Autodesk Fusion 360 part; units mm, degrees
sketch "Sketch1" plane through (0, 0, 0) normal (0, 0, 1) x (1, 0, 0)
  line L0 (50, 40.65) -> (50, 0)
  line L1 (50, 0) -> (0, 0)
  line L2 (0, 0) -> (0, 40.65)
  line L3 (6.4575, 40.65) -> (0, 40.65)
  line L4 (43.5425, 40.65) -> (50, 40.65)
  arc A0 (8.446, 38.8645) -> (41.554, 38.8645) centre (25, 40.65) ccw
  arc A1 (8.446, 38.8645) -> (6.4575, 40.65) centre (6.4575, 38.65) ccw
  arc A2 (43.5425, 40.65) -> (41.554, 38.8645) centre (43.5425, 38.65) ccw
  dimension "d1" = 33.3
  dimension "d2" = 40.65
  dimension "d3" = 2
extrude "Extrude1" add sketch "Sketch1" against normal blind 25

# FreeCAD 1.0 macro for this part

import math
import FreeCAD as App
import Part
import Sketcher

doc = App.newDocument("Part")
params = doc.addObject("Spreadsheet::Sheet", "Params")
for row, (alias, value) in enumerate([
    ("sketch1_radius", "2 mm"),
    ("sketch1_radius2", "16.65 mm"),
    ("sketch1_height", "40.65 mm"),
    ("sketch1_width", "50 mm"),
    ("pad1_length", "25 mm"),
], start=1):
    params.set(f"A{row}", alias)
    params.set(f"B{row}", "=" + value)
    params.setAlias(f"B{row}", alias)

body = doc.addObject("PartDesign::Body", "Body")

sketch1 = body.newObject("Sketcher::SketchObject", "Sketch")
sketch1.AttachmentSupport = (doc.getObject("XY_Plane"), [""])
sketch1.MapMode = "FlatFace"
sketch1.addGeometry([
    Part.LineSegment(App.Vector(50, 0, 0), App.Vector(50, 40.65, 0)),
    Part.LineSegment(App.Vector(50, 40.65, 0), App.Vector(43.5425, 40.65, 0)),
    Part.ArcOfCircle(Part.Circle(App.Vector(43.5425, 38.65, 0), App.Vector(0, 0, 1), 2), math.radians(90), math.radians(173.843296)),
    Part.ArcOfCircle(Part.Circle(App.Vector(25, 40.65, 0), App.Vector(0, 0, 1), 16.650013), math.radians(-173.843926), math.radians(-6.156074)),
    Part.ArcOfCircle(Part.Circle(App.Vector(6.4575, 38.65, 0), App.Vector(0, 0, 1), 2.000036), math.radians(6.156704), math.radians(90)),
    Part.LineSegment(App.Vector(6.4575, 40.65, 0), App.Vector(0, 40.65, 0)),
    Part.LineSegment(App.Vector(0, 40.65, 0), App.Vector(0, 0, 0)),
    Part.LineSegment(App.Vector(0, 0, 0), App.Vector(50, 0, 0)),
], False)
sketch1.addConstraint([
    Sketcher.Constraint("Coincident", 0, 2, 1, 1),
    Sketcher.Constraint("Tangent", 1, 2, 2, 1),
    Sketcher.Constraint("Tangent", 2, 2, 3, 2),
    Sketcher.Constraint("Tangent", 3, 1, 4, 1),
    Sketcher.Constraint("Tangent", 4, 2, 5, 1),
    Sketcher.Constraint("Coincident", 5, 2, 6, 1),
    Sketcher.Constraint("Coincident", 6, 2, 7, 1),
    Sketcher.Constraint("Coincident", 7, 2, 0, 1),
    Sketcher.Constraint("Vertical", 0),
    Sketcher.Constraint("Horizontal", 1),
    Sketcher.Constraint("Horizontal", 5),
    Sketcher.Constraint("Vertical", 6),
    Sketcher.Constraint("Horizontal", 7),
    Sketcher.Constraint("Coincident", 6, 2, -1, 1),
    Sketcher.Constraint("Equal", 2, 4),
    Sketcher.Constraint("Horizontal", 2, 3, 4, 3),
    Sketcher.Constraint("Horizontal", 3, 3, 0, 2),
    Sketcher.Constraint("Equal", 1, 5),
    Sketcher.Constraint("Radius", 2, 2.0),
    Sketcher.Constraint("Radius", 3, 16.65),
    Sketcher.Constraint("DistanceY", 0, 1, 0, 2, 40.65),
    Sketcher.Constraint("DistanceX", 7, 1, 7, 2, 50.0),
])
sketch1.setExpression("Constraints[18]", "Params.sketch1_radius")
sketch1.setExpression("Constraints[19]", "Params.sketch1_radius2")
sketch1.setExpression("Constraints[20]", "Params.sketch1_height")
sketch1.setExpression("Constraints[21]", "Params.sketch1_width")
pad1 = body.newObject("PartDesign::Pad", "Pad")
pad1.Profile = sketch1
pad1.setExpression("Length", "Params.pad1_length")
pad1.Reversed = True

doc.recompute()
